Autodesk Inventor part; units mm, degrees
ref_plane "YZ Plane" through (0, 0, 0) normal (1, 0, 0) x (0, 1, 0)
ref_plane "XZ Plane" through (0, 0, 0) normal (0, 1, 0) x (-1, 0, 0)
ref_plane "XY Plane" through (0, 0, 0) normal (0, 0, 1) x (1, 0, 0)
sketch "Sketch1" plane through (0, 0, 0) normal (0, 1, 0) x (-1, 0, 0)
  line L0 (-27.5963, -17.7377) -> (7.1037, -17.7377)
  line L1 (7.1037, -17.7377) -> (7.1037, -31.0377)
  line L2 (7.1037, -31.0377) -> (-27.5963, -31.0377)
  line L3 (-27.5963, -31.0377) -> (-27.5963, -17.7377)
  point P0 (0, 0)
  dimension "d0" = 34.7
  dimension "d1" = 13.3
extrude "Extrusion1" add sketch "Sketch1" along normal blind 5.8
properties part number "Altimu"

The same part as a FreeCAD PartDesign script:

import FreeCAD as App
import Part
import Sketcher
from FreeCAD import Vector
Q = App.Units.Quantity

doc = App.newDocument("Part")
body = doc.addObject("PartDesign::Body", "Body")

sketch1 = body.newObject("Sketcher::SketchObject", "Sketch")
sketch1.AttachmentSupport = (doc.getObject("XZ_Plane"), [""])
sketch1.MapMode = "FlatFace"
sketch1.addGeometry(Part.LineSegment(Vector(-7, -18, 0), Vector(28, -18, 0)), False)
sketch1.addGeometry(Part.LineSegment(Vector(28, -18, 0), Vector(28, -31, 0)), False)
sketch1.addGeometry(Part.LineSegment(Vector(28, -31, 0), Vector(-7, -31, 0)), False)
sketch1.addGeometry(Part.LineSegment(Vector(-7, -31, 0), Vector(-7, -18, 0)), False)
sketch1.addConstraint(Sketcher.Constraint("Coincident", 0, 2, 1, 1))
sketch1.addConstraint(Sketcher.Constraint("Coincident", 1, 2, 2, 1))
sketch1.addConstraint(Sketcher.Constraint("Coincident", 2, 2, 3, 1))
sketch1.addConstraint(Sketcher.Constraint("Coincident", 3, 2, 0, 1))
sketch1.addConstraint(Sketcher.Constraint("Horizontal", 0))
sketch1.addConstraint(Sketcher.Constraint("Vertical", 1))
sketch1.addConstraint(Sketcher.Constraint("Horizontal", 2))
sketch1.addConstraint(Sketcher.Constraint("Vertical", 3))
sketch1.addConstraint(Sketcher.Constraint("DistanceX", 0, 1, 0, 2, Q("34.7 mm")))
sketch1.addConstraint(Sketcher.Constraint("DistanceY", 1, 2, 1, 1, Q("13.3 mm")))
sketch1.addConstraint(Sketcher.Constraint("DistanceX", -1, 1, 0, 2, Q("27.5963 mm")))
sketch1.addConstraint(Sketcher.Constraint("DistanceY", 0, 2, -1, 1, Q("17.7377 mm")))
pad1 = body.newObject("PartDesign::Pad", "Pad")
pad1.Profile = sketch1
pad1.Length = 5.8
pad1.Reversed = True

doc.recompute()
